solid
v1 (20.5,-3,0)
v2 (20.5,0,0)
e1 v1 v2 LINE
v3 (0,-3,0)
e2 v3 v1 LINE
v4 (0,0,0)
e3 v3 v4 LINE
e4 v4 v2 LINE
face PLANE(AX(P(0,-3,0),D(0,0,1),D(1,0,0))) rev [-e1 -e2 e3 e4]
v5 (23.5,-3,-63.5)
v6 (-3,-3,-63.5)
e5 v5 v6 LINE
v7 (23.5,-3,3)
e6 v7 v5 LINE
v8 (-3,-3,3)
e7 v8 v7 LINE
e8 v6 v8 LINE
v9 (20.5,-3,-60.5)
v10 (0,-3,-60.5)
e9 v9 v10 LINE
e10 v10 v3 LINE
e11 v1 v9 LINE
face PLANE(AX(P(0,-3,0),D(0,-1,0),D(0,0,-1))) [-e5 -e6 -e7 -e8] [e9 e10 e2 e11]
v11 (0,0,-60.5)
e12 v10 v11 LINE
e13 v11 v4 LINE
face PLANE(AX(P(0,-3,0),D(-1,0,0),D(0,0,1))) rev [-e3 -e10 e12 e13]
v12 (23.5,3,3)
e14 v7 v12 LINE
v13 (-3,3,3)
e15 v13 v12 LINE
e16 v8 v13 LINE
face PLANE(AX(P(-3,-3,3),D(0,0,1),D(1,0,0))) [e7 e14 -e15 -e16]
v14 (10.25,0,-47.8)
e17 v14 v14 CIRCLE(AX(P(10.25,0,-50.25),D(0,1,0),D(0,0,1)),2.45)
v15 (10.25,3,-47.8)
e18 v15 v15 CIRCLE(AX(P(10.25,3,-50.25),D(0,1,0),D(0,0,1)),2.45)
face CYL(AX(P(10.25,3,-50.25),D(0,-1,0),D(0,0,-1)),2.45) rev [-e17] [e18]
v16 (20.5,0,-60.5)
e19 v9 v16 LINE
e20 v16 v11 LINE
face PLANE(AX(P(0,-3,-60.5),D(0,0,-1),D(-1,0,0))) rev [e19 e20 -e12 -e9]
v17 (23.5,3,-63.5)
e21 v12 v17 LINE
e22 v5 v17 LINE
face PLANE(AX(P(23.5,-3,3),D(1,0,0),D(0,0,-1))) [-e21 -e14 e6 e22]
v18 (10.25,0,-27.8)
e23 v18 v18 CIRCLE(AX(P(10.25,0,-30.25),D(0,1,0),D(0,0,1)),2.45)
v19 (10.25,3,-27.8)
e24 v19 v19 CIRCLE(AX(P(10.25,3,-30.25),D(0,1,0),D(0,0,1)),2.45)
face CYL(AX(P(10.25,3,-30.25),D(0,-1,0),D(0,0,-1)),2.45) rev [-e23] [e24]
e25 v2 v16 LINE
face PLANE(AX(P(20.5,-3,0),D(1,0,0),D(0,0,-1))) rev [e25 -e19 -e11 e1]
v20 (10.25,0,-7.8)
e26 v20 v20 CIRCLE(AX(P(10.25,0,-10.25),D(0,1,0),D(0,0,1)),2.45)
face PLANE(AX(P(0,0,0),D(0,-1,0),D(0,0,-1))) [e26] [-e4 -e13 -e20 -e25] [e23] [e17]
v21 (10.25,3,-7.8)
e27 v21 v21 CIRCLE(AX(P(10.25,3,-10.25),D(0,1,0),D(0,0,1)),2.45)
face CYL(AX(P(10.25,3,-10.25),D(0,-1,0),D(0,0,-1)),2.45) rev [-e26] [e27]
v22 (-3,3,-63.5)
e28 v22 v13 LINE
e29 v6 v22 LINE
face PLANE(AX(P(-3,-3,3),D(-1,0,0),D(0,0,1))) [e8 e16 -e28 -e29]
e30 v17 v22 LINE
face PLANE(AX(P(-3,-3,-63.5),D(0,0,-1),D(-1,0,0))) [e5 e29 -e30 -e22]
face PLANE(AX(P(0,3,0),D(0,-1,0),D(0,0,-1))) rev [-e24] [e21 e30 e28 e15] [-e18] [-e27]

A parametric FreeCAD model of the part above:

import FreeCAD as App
import Part
import Sketcher
from FreeCAD import Vector
Q = App.Units.Quantity


def add_polygon(sketch, points):
    """Adds a closed chain of lines whose ends are joined by coincident constraints."""
    first, n = sketch.GeometryCount, len(points)
    for a, b in zip(points, points[1:] + points[:1]):
        sketch.addGeometry(Part.LineSegment(App.Vector(*a, 0), App.Vector(*b, 0)), False)
    for i in range(n):
        sketch.addConstraint(Sketcher.Constraint("Coincident", first + i, 2, first + (i + 1) % n, 1))

doc = App.newDocument("Part")
body = doc.addObject("PartDesign::Body", "Body")

sketch1 = doc.addObject("Sketcher::SketchObject", "Sketch")
body.addObject(sketch1)
sketch1.AttachmentSupport = (doc.XZ_Plane, [""])
sketch1.MapMode = "FlatFace"
add_polygon(sketch1, [(0, -60.5), (0, 0), (20.5, 0), (20.5, -60.5)])
sketch1.addGeometry(Part.Circle(Vector(10.25, -10.25, 0), Vector(0, 0, 1), 2.45), False)
sketch1.addGeometry(Part.Circle(Vector(10.25, -30.25, 0), Vector(0, 0, 1), 2.45), False)
sketch1.addGeometry(Part.Circle(Vector(10.25, -50.25, 0), Vector(0, 0, 1), 2.45), False)
sketch1.addConstraint(Sketcher.Constraint("Vertical", 0))
sketch1.addConstraint(Sketcher.Constraint("Horizontal", 1))
sketch1.addConstraint(Sketcher.Constraint("Vertical", 2))
sketch1.addConstraint(Sketcher.Constraint("Horizontal", 3))
sketch1.addConstraint(Sketcher.Constraint("Coincident", 0, 2, -1, 1))
sketch1.addConstraint(Sketcher.Constraint("Equal", 4, 5))
sketch1.addConstraint(Sketcher.Constraint("Equal", 5, 6))
sketch1.addConstraint(Sketcher.Constraint("Vertical", 4, 3, 5, 3))
sketch1.addConstraint(Sketcher.Constraint("Vertical", 5, 3, 6, 3))
sketch1.addConstraint(Sketcher.Constraint("Diameter", 4, Q("4.9 mm")))
sketch1.addConstraint(Sketcher.Constraint("DistanceX", 1, 1, 1, 2, Q("20.5 mm")))
sketch1.addConstraint(Sketcher.Constraint("DistanceY", 0, 1, 0, 2, Q("60.5 mm")))
sketch1.addConstraint(Sketcher.Constraint("DistanceY", 5, 3, 4, 3, Q("20 mm")))
sketch1.addConstraint(Sketcher.Constraint("DistanceY", 6, 3, 5, 3, Q("20 mm")))
sketch1.addConstraint(Sketcher.Constraint("DistanceX", -1, 1, 4, 3, Q("10.25 mm")))
sketch1.addConstraint(Sketcher.Constraint("DistanceY", 4, 3, -1, 1, Q("10.25 mm")))
pad1 = doc.addObject("PartDesign::Pad", "Pad")
body.addObject(pad1)
pad1.Profile = sketch1
pad1.Length = 3
pad1.Reversed = True

sketch2 = doc.addObject("Sketcher::SketchObject", "Sketch001")
body.addObject(sketch2)
sketch2.AttachmentSupport = (doc.XZ_Plane, [""])
sketch2.MapMode = "FlatFace"
sketch2.AttachmentOffset = App.Placement(Vector(0, 0, -3), App.Rotation())
add_polygon(sketch2, [(-3, -63.5), (-3, 3), (23.5, 3), (23.5, -63.5)])
add_polygon(sketch2, [(20.5, 0), (0, 0), (0, -60.5), (20.5, -60.5)])
sketch2.addConstraint(Sketcher.Constraint("Vertical", 0))
sketch2.addConstraint(Sketcher.Constraint("Horizontal", 1))
sketch2.addConstraint(Sketcher.Constraint("Vertical", 2))
sketch2.addConstraint(Sketcher.Constraint("Horizontal", 3))
sketch2.addConstraint(Sketcher.Constraint("Horizontal", 4))
sketch2.addConstraint(Sketcher.Constraint("Vertical", 5))
sketch2.addConstraint(Sketcher.Constraint("Horizontal", 6))
sketch2.addConstraint(Sketcher.Constraint("Vertical", 7))
sketch2.addConstraint(Sketcher.Constraint("Coincident", 4, 2, -1, 1))
sketch2.addConstraint(Sketcher.Constraint("DistanceX", 1, 1, 1, 2, Q("26.5 mm")))
sketch2.addConstraint(Sketcher.Constraint("DistanceX", 4, 2, 4, 1, Q("20.5 mm")))
sketch2.addConstraint(Sketcher.Constraint("DistanceY", 0, 1, 0, 2, Q("66.5 mm")))
sketch2.addConstraint(Sketcher.Constraint("DistanceY", 5, 2, 5, 1, Q("60.5 mm")))
sketch2.addConstraint(Sketcher.Constraint("DistanceX", 0, 2, -1, 1, Q("3 mm")))
sketch2.addConstraint(Sketcher.Constraint("DistanceY", -1, 1, 0, 2, Q("3 mm")))
pad2 = doc.addObject("PartDesign::Pad", "Pad001")
body.addObject(pad2)
pad2.Profile = sketch2
pad2.Length = 6

doc.recompute()
